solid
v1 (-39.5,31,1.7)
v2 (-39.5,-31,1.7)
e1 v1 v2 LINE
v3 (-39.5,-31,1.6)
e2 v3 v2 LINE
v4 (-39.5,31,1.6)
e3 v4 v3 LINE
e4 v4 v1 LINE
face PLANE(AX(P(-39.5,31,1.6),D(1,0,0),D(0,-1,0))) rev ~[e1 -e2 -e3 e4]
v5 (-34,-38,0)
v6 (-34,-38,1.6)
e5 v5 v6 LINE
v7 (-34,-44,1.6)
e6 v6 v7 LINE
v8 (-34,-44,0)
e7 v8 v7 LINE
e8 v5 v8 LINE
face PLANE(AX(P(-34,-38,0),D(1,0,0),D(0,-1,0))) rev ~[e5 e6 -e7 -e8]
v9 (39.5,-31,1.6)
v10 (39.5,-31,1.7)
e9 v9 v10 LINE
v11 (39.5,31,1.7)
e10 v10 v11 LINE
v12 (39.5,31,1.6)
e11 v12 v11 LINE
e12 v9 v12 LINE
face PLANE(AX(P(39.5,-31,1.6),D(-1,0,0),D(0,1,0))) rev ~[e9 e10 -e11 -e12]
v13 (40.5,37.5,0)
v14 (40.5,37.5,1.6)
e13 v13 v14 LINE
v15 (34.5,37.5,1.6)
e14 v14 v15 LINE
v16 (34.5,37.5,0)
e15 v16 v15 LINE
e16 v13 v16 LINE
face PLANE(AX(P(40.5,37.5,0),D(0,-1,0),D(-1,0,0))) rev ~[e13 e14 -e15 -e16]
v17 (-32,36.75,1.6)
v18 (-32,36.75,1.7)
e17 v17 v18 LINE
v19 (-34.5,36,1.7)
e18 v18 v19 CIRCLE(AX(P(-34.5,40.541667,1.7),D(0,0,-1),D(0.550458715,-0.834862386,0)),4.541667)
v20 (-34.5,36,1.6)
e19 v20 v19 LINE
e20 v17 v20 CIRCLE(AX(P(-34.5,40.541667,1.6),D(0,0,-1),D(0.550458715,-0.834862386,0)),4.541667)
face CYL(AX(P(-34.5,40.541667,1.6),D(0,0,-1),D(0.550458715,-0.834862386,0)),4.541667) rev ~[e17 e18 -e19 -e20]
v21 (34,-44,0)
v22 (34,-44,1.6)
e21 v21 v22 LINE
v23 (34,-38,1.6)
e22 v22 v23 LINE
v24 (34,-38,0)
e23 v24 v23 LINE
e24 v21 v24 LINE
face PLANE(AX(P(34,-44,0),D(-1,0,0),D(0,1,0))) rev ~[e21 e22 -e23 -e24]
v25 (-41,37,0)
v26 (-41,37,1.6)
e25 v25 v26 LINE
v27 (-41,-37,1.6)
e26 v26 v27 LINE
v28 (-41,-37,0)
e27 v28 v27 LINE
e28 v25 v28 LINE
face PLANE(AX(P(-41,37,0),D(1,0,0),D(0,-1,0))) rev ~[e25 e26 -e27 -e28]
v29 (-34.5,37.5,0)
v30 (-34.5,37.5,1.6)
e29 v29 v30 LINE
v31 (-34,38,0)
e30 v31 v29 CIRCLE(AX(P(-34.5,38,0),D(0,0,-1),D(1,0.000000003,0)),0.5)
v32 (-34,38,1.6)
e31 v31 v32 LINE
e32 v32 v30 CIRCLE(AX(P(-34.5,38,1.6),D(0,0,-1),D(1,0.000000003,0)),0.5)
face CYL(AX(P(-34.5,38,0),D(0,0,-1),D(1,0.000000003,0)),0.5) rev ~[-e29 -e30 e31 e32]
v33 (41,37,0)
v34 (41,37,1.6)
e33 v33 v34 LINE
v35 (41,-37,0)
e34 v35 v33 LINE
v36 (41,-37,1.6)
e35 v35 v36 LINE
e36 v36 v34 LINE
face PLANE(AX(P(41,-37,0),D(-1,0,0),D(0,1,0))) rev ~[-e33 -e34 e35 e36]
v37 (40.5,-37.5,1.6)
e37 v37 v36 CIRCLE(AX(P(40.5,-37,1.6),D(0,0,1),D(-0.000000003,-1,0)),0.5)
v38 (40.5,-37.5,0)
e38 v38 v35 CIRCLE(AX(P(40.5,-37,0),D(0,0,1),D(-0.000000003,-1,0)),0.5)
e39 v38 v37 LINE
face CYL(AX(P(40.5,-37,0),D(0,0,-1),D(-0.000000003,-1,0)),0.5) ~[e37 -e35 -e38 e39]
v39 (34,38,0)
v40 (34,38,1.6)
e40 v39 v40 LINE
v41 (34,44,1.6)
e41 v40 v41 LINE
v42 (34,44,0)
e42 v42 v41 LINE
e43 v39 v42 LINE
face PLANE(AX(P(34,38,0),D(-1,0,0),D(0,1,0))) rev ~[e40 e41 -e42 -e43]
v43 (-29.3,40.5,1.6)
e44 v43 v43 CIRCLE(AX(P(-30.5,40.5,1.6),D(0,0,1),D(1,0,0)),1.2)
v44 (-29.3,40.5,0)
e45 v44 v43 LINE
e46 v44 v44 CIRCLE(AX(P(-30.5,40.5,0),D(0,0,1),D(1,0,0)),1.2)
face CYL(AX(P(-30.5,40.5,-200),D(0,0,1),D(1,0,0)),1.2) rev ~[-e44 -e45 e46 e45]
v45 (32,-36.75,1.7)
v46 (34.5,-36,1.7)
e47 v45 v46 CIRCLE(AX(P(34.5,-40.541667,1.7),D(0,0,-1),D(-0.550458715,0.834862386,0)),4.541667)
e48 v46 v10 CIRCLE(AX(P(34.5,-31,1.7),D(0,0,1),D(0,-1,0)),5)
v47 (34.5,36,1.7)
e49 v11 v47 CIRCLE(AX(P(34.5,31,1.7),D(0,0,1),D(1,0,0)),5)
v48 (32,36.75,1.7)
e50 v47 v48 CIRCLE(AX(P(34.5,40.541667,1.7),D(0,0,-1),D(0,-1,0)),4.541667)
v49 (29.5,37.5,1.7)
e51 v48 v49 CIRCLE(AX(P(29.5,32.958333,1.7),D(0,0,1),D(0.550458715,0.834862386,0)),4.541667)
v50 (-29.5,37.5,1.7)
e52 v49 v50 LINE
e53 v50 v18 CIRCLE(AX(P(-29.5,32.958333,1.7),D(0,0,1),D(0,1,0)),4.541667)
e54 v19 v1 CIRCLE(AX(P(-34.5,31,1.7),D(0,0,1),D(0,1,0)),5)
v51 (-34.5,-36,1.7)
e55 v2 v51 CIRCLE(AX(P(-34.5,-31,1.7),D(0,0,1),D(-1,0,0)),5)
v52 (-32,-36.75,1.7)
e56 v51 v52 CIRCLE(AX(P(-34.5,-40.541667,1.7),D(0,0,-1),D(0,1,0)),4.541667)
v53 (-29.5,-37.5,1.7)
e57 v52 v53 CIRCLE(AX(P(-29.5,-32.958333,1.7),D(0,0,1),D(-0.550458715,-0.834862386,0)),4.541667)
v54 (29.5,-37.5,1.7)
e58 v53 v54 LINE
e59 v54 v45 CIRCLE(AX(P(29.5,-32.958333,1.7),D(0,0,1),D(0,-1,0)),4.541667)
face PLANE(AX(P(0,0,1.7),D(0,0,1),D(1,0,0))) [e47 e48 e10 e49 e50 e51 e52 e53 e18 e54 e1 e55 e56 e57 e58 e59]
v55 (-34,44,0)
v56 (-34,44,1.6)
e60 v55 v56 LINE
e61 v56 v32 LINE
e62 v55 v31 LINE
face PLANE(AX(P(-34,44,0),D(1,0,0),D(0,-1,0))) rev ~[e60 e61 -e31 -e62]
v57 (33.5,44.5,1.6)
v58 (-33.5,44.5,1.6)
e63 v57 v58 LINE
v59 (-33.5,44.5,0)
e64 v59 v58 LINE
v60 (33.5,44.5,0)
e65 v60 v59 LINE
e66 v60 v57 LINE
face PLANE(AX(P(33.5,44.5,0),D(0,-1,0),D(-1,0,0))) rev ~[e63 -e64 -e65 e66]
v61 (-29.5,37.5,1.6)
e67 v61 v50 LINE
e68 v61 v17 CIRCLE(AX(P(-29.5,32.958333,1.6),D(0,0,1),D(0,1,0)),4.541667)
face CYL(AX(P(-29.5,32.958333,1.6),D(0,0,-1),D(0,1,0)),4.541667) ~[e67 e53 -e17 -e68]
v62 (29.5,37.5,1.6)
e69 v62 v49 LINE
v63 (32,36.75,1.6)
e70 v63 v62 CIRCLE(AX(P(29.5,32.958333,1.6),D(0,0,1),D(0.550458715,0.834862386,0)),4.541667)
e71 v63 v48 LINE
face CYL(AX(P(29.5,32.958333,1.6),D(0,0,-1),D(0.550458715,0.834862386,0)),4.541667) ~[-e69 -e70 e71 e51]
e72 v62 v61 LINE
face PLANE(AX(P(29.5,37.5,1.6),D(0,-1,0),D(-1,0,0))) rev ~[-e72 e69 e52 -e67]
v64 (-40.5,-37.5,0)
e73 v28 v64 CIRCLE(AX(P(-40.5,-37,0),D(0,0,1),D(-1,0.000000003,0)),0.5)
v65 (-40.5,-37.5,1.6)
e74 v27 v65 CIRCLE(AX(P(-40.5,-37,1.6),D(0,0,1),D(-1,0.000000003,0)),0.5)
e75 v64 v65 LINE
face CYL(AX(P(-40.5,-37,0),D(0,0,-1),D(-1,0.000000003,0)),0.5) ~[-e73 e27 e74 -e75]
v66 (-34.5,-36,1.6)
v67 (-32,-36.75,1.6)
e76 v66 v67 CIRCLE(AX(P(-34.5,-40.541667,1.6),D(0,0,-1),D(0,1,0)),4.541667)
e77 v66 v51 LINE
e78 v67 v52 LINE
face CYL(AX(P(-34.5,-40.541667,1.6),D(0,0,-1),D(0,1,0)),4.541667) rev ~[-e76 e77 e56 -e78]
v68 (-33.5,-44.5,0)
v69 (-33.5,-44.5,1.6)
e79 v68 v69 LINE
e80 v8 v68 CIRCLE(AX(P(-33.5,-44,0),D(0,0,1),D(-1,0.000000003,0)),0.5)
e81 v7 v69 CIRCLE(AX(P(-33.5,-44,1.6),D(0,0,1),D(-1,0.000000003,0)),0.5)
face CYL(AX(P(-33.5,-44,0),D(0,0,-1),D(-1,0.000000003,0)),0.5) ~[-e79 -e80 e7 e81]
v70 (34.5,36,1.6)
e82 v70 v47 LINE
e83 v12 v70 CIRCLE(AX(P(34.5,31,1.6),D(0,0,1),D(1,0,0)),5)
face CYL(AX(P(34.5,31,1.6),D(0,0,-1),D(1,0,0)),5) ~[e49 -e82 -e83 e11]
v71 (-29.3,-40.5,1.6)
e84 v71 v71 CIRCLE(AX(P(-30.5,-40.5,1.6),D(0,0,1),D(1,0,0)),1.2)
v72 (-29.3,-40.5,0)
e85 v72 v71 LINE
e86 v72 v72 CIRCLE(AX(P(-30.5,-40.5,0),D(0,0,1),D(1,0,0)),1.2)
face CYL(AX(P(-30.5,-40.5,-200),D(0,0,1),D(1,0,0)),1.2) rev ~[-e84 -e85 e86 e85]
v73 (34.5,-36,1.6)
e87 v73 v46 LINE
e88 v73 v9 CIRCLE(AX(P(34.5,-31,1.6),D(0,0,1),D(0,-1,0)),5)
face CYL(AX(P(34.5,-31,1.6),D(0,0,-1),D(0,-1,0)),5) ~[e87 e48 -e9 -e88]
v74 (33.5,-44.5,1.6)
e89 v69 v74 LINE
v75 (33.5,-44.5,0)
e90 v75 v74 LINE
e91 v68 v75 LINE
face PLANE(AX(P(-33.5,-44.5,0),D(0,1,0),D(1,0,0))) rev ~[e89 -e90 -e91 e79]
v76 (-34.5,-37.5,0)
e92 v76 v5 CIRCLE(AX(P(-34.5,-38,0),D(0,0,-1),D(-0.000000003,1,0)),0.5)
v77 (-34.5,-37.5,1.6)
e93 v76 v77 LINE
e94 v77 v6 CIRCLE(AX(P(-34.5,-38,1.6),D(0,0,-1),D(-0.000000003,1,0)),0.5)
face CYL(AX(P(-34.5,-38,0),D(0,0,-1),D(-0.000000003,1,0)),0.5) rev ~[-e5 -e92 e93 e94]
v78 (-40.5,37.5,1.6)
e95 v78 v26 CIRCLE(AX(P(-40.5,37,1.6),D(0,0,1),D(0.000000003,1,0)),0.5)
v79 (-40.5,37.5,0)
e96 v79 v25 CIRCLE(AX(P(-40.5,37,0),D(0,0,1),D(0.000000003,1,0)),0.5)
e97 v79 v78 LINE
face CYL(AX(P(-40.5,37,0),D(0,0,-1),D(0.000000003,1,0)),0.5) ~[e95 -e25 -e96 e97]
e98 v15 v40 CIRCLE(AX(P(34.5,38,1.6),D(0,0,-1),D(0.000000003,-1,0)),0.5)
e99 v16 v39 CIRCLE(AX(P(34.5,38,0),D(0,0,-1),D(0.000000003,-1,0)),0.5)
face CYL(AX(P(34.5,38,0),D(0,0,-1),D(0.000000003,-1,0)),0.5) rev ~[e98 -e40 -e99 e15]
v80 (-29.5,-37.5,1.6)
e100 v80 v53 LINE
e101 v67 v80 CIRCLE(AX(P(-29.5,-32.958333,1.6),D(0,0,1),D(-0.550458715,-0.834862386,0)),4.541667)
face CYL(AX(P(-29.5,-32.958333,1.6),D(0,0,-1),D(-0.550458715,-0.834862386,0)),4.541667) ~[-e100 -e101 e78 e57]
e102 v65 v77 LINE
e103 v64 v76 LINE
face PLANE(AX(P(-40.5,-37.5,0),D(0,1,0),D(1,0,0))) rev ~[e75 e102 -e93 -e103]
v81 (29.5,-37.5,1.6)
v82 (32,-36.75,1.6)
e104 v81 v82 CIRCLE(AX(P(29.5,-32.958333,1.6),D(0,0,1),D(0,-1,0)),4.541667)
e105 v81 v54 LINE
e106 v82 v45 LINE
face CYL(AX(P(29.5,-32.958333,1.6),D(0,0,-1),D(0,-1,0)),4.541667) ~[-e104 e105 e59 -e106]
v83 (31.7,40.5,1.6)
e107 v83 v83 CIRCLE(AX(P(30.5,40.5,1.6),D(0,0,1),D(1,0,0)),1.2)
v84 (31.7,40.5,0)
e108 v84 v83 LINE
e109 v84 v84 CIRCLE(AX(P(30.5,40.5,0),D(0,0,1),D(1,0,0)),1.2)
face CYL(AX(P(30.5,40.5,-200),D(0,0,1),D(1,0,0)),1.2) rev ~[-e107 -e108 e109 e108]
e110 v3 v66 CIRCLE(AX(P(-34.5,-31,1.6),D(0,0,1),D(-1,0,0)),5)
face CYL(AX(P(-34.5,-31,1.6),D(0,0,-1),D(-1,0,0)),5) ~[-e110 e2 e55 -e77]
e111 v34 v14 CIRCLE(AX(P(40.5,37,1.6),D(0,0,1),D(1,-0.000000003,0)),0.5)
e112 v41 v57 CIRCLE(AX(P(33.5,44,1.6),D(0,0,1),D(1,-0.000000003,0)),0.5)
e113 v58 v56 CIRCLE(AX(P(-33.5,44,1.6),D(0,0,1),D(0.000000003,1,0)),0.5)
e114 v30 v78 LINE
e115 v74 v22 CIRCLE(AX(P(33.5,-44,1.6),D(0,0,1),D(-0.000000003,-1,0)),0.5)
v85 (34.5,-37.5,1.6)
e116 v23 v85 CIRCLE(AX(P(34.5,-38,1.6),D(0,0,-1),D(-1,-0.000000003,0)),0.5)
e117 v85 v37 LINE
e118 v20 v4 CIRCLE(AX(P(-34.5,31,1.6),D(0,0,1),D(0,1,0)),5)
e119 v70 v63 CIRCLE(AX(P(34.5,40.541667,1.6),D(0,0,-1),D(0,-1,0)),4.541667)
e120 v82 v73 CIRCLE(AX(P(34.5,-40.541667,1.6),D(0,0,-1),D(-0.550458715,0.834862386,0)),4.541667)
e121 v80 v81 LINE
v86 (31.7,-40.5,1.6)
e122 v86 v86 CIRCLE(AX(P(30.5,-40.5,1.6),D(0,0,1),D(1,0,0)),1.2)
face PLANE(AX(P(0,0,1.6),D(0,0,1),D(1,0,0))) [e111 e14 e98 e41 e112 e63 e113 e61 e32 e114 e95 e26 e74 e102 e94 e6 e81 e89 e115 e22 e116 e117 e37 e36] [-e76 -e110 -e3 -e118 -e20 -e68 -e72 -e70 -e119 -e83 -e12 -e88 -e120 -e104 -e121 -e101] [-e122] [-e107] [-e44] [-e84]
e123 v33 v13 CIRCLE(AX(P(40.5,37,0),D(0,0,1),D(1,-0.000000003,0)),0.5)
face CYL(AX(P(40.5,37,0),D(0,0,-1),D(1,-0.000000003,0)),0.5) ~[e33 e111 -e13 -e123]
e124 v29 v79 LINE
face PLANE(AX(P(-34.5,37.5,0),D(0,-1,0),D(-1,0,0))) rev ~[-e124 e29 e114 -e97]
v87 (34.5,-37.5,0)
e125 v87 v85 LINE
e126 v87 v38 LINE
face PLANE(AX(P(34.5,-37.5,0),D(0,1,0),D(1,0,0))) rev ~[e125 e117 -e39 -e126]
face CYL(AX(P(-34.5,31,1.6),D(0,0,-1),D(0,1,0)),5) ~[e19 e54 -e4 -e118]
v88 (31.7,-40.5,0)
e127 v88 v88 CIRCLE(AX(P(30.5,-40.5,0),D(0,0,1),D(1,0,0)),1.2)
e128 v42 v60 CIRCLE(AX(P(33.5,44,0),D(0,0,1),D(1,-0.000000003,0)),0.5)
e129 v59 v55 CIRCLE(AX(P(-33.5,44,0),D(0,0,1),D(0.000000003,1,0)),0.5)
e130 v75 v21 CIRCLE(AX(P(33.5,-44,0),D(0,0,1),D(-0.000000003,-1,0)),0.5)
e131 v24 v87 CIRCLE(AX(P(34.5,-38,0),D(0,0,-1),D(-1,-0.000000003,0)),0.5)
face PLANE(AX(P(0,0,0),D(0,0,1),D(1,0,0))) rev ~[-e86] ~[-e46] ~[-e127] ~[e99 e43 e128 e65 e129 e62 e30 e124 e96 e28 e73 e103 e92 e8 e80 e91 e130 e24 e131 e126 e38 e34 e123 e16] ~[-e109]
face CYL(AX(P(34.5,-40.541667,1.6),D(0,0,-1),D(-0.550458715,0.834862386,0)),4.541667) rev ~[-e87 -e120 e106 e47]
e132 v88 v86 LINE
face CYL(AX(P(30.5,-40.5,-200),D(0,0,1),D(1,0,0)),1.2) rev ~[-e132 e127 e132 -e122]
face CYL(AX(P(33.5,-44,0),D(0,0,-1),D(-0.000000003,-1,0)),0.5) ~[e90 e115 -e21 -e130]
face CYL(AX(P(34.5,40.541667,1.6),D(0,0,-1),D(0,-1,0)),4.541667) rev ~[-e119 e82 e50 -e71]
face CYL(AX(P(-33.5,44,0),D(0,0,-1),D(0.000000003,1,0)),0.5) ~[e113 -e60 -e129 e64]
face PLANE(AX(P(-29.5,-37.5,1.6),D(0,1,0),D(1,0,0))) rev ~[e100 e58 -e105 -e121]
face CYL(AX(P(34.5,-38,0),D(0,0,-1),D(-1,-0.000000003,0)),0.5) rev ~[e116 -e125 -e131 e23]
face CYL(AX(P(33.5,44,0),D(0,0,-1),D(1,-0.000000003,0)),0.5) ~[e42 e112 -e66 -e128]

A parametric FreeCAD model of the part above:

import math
import FreeCAD as App
import Part
import Sketcher

V = App.Vector
Q = App.Units.Quantity

doc = App.newDocument("Part")
body = doc.addObject("PartDesign::Body", "Body")

# Sketch on XY plane
sketch1 = body.newObject("Sketcher::SketchObject", "Sketch")
sketch1.AttachmentSupport = (doc.getObject("XY_Plane"), [""])
sketch1.MapMode = "FlatFace"
sketch1.addGeometry([
    Part.LineSegment(V(-34, 44, 0), V(-34, 38, 0)),  # 0
    Part.ArcOfCircle(Part.Circle(V(-34.5, 38, 0), V(0, 0, 1), 0.5), math.radians(-90), math.radians(0)),  # 1
    Part.LineSegment(V(-34.5, 37.5, 0), V(-40.5, 37.5, 0)),  # 2
    Part.ArcOfCircle(Part.Circle(V(-40.5, 37, 0), V(0, 0, 1), 0.5), math.radians(90), math.radians(180)),  # 3
    Part.LineSegment(V(-41, 37, 0), V(-41, -37, 0)),  # 4
    Part.ArcOfCircle(Part.Circle(V(-40.5, -37, 0), V(0, 0, 1), 0.5), math.radians(180), math.radians(270)),  # 5
    Part.LineSegment(V(-40.5, -37.5, 0), V(-34.5, -37.5, 0)),  # 6
    Part.ArcOfCircle(Part.Circle(V(-34.5, -38, 0), V(0, 0, 1), 0.5), math.radians(0), math.radians(90)),  # 7
    Part.LineSegment(V(-34, -38, 0), V(-34, -44, 0)),  # 8
    Part.ArcOfCircle(Part.Circle(V(-33.5, -44, 0), V(0, 0, 1), 0.5), math.radians(180), math.radians(270)),  # 9
    Part.LineSegment(V(-33.5, -44.5, 0), V(33.5, -44.5, 0)),  # 10
    Part.ArcOfCircle(Part.Circle(V(33.5, -44, 0), V(0, 0, 1), 0.5), math.radians(-90), math.radians(0)),  # 11
    Part.LineSegment(V(34, -44, 0), V(34, -38, 0)),  # 12
    Part.ArcOfCircle(Part.Circle(V(34.5, -38, 0), V(0, 0, 1), 0.5), math.radians(90), math.radians(180)),  # 13
    Part.LineSegment(V(34.5, -37.5, 0), V(40.5, -37.5, 0)),  # 14
    Part.ArcOfCircle(Part.Circle(V(40.5, -37, 0), V(0, 0, 1), 0.5), math.radians(-90), math.radians(0)),  # 15
    Part.LineSegment(V(41, -37, 0), V(41, 37, 0)),  # 16
    Part.ArcOfCircle(Part.Circle(V(40.5, 37, 0), V(0, 0, 1), 0.5), math.radians(0), math.radians(90)),  # 17
    Part.LineSegment(V(40.5, 37.5, 0), V(34.5, 37.5, 0)),  # 18
    Part.ArcOfCircle(Part.Circle(V(34.5, 38, 0), V(0, 0, 1), 0.5), math.radians(180), math.radians(270)),  # 19
    Part.LineSegment(V(34, 38, 0), V(34, 44, 0)),  # 20
    Part.ArcOfCircle(Part.Circle(V(33.5, 44, 0), V(0, 0, 1), 0.5), math.radians(0), math.radians(90)),  # 21
    Part.LineSegment(V(33.5, 44.5, 0), V(-33.5, 44.5, 0)),  # 22
    Part.ArcOfCircle(Part.Circle(V(-33.5, 44, 0), V(0, 0, 1), 0.5), math.radians(90), math.radians(180)),  # 23
], False)
sketch1.addConstraint([
    Sketcher.Constraint("Tangent", 0, 2, 1, 2),
    Sketcher.Constraint("Tangent", 1, 1, 2, 1),
    Sketcher.Constraint("Tangent", 2, 2, 3, 1),
    Sketcher.Constraint("Tangent", 3, 2, 4, 1),
    Sketcher.Constraint("Tangent", 4, 2, 5, 1),
    Sketcher.Constraint("Tangent", 5, 2, 6, 1),
    Sketcher.Constraint("Tangent", 6, 2, 7, 2),
    Sketcher.Constraint("Tangent", 7, 1, 8, 1),
    Sketcher.Constraint("Tangent", 8, 2, 9, 1),
    Sketcher.Constraint("Tangent", 9, 2, 10, 1),
    Sketcher.Constraint("Tangent", 10, 2, 11, 1),
    Sketcher.Constraint("Tangent", 11, 2, 12, 1),
    Sketcher.Constraint("Tangent", 12, 2, 13, 2),
    Sketcher.Constraint("Tangent", 13, 1, 14, 1),
    Sketcher.Constraint("Tangent", 14, 2, 15, 1),
    Sketcher.Constraint("Tangent", 15, 2, 16, 1),
    Sketcher.Constraint("Tangent", 16, 2, 17, 1),
    Sketcher.Constraint("Tangent", 17, 2, 18, 1),
    Sketcher.Constraint("Tangent", 18, 2, 19, 2),
    Sketcher.Constraint("Tangent", 19, 1, 20, 1),
    Sketcher.Constraint("Tangent", 20, 2, 21, 1),
    Sketcher.Constraint("Tangent", 21, 2, 22, 1),
    Sketcher.Constraint("Tangent", 22, 2, 23, 1),
    Sketcher.Constraint("Tangent", 23, 2, 0, 1),
    Sketcher.Constraint("Vertical", 0),
    Sketcher.Constraint("Horizontal", 2),
    Sketcher.Constraint("Vertical", 4),
    Sketcher.Constraint("Horizontal", 6),
    Sketcher.Constraint("Vertical", 8),
    Sketcher.Constraint("Horizontal", 10),
    Sketcher.Constraint("Vertical", 12),
    Sketcher.Constraint("Horizontal", 14),
    Sketcher.Constraint("Vertical", 16),
    Sketcher.Constraint("Horizontal", 18),
    Sketcher.Constraint("Vertical", 20),
    Sketcher.Constraint("Horizontal", 22),
    Sketcher.Constraint("Equal", 1, 3),
    Sketcher.Constraint("Equal", 3, 5),
    Sketcher.Constraint("Equal", 5, 7),
    Sketcher.Constraint("Equal", 7, 9),
    Sketcher.Constraint("Equal", 9, 11),
    Sketcher.Constraint("Equal", 11, 13),
    Sketcher.Constraint("Equal", 13, 15),
    Sketcher.Constraint("Equal", 15, 17),
    Sketcher.Constraint("Equal", 17, 19),
    Sketcher.Constraint("Equal", 19, 21),
    Sketcher.Constraint("Equal", 21, 23),
    Sketcher.Constraint("Symmetric", 1, 3, 13, 3, -1, 1),
    Sketcher.Constraint("Symmetric", 5, 3, 17, 3, -1, 1),
    Sketcher.Constraint("Symmetric", 9, 3, 21, 3, -1, 1),
    Sketcher.Constraint("Symmetric", 7, 3, 13, 3, -2),
    Sketcher.Constraint("Equal", 18, 0),
    Sketcher.Constraint("Radius", 1, Q("0.5 mm")),
    Sketcher.Constraint("DistanceX", 2, 2, 2, 1, Q("6 mm")),
    Sketcher.Constraint("DistanceX", 10, 1, 10, 2, Q("67 mm")),
    Sketcher.Constraint("DistanceY", 4, 2, 4, 1, Q("74 mm")),
])
pad1 = body.newObject("PartDesign::Pad", "Pad")
pad1.Profile = sketch1
pad1.Length = 1.6

# Sketch on XY plane
sketch2 = body.newObject("Sketcher::SketchObject", "Sketch001")
sketch2.AttachmentSupport = (doc.getObject("XY_Plane"), [""])
sketch2.MapMode = "FlatFace"
sketch2.AttachmentOffset = App.Placement(V(0, 0, 1.6), App.Rotation())
sketch2.addGeometry([
    Part.LineSegment(V(-29.5, -37.5, 0), V(29.5, -37.5, 0)),  # 0
    Part.ArcOfCircle(Part.Circle(V(29.5, -32.958333, 0), V(0, 0, 1), 4.541667), math.radians(-90), math.radians(-56.601512)),  # 1
    Part.ArcOfCircle(Part.Circle(V(34.5, -40.541667, 0), V(0, 0, 1), 4.541667), math.radians(90), math.radians(123.398488)),  # 2
    Part.ArcOfCircle(Part.Circle(V(34.5, -31, 0), V(0, 0, 1), 5), math.radians(-90), math.radians(0)),  # 3
    Part.LineSegment(V(39.5, -31, 0), V(39.5, 31, 0)),  # 4
    Part.ArcOfCircle(Part.Circle(V(34.5, 31, 0), V(0, 0, 1), 5), math.radians(0), math.radians(90)),  # 5
    Part.ArcOfCircle(Part.Circle(V(34.5, 40.541667, 0), V(0, 0, 1), 4.541667), math.radians(-123.398488), math.radians(-90)),  # 6
    Part.ArcOfCircle(Part.Circle(V(29.5, 32.958333, 0), V(0, 0, 1), 4.541667), math.radians(56.601512), math.radians(90)),  # 7
    Part.LineSegment(V(29.5, 37.5, 0), V(-29.5, 37.5, 0)),  # 8
    Part.ArcOfCircle(Part.Circle(V(-29.5, 32.958333, 0), V(0, 0, 1), 4.541667), math.radians(90), math.radians(123.398488)),  # 9
    Part.ArcOfCircle(Part.Circle(V(-34.5, 40.541667, 0), V(0, 0, 1), 4.541667), math.radians(-90), math.radians(-56.601512)),  # 10
    Part.ArcOfCircle(Part.Circle(V(-34.5, 31, 0), V(0, 0, 1), 5), math.radians(90), math.radians(180)),  # 11
    Part.LineSegment(V(-39.5, 31, 0), V(-39.5, -31, 0)),  # 12
    Part.ArcOfCircle(Part.Circle(V(-34.5, -31, 0), V(0, 0, 1), 5), math.radians(180), math.radians(270)),  # 13
    Part.ArcOfCircle(Part.Circle(V(-34.5, -40.541667, 0), V(0, 0, 1), 4.541667), math.radians(56.601512), math.radians(90)),  # 14
    Part.ArcOfCircle(Part.Circle(V(-29.5, -32.958333, 0), V(0, 0, 1), 4.541667), math.radians(-123.398488), math.radians(-90)),  # 15
], False)
sketch2.addConstraint([
    Sketcher.Constraint("Tangent", 0, 2, 1, 1),
    Sketcher.Constraint("Tangent", 1, 2, 2, 2),
    Sketcher.Constraint("Tangent", 2, 1, 3, 1),
    Sketcher.Constraint("Tangent", 3, 2, 4, 1),
    Sketcher.Constraint("Tangent", 4, 2, 5, 1),
    Sketcher.Constraint("Tangent", 5, 2, 6, 2),
    Sketcher.Constraint("Tangent", 6, 1, 7, 1),
    Sketcher.Constraint("Tangent", 7, 2, 8, 1),
    Sketcher.Constraint("Tangent", 8, 2, 9, 1),
    Sketcher.Constraint("Tangent", 9, 2, 10, 2),
    Sketcher.Constraint("Tangent", 10, 1, 11, 1),
    Sketcher.Constraint("Tangent", 11, 2, 12, 1),
    Sketcher.Constraint("Tangent", 12, 2, 13, 1),
    Sketcher.Constraint("Tangent", 13, 2, 14, 2),
    Sketcher.Constraint("Tangent", 14, 1, 15, 1),
    Sketcher.Constraint("Tangent", 15, 2, 0, 1),
    Sketcher.Constraint("Horizontal", 0),
    Sketcher.Constraint("Vertical", 4),
    Sketcher.Constraint("Horizontal", 8),
    Sketcher.Constraint("Vertical", 12),
    Sketcher.Constraint("Equal", 1, 2),
    Sketcher.Constraint("Equal", 3, 5),
    Sketcher.Constraint("Equal", 2, 6),
    Sketcher.Constraint("Equal", 6, 7),
    Sketcher.Constraint("Equal", 7, 9),
    Sketcher.Constraint("Equal", 9, 10),
    Sketcher.Constraint("Equal", 5, 11),
    Sketcher.Constraint("Equal", 11, 13),
    Sketcher.Constraint("Equal", 10, 14),
    Sketcher.Constraint("Equal", 14, 15),
    Sketcher.Constraint("Symmetric", 1, 3, 9, 3, -1, 1),
    Sketcher.Constraint("Symmetric", 3, 3, 11, 3, -1, 1),
    Sketcher.Constraint("Symmetric", 6, 3, 14, 3, -1, 1),
    Sketcher.Constraint("Symmetric", 6, 3, 10, 3, -2),
    Sketcher.Constraint("Vertical", 2, 3, 3, 3),
    Sketcher.Constraint("Radius", 3, Q("5 mm")),
    Sketcher.Constraint("DistanceX", 0, 1, 0, 2, Q("59 mm")),
    Sketcher.Constraint("DistanceY", 4, 1, 4, 2, Q("62 mm")),
    Sketcher.Constraint("DistanceX", -1, 1, 1, 2, Q("32 mm")),
    Sketcher.Constraint("DistanceY", 0, 2, -1, 1, Q("37.5 mm")),
])
pad2 = body.newObject("PartDesign::Pad", "Pad001")
pad2.Profile = sketch2
pad2.Length = 0.1

# Sketch on XY plane
sketch3 = body.newObject("Sketcher::SketchObject", "Sketch002")
sketch3.AttachmentSupport = (doc.getObject("XY_Plane"), [""])
sketch3.MapMode = "FlatFace"
sketch3.addGeometry([
    Part.Circle(V(30.5, 40.5, 0), V(0, 0, 1), 1.2),
    Part.Circle(V(-30.5, 40.5, 0), V(0, 0, 1), 1.2),
    Part.Circle(V(30.5, -40.5, 0), V(0, 0, 1), 1.2),
    Part.Circle(V(-30.5, -40.5, 0), V(0, 0, 1), 1.2),
], False)
sketch3.addConstraint([
    Sketcher.Constraint("Equal", 0, 1),
    Sketcher.Constraint("Equal", 1, 2),
    Sketcher.Constraint("Equal", 2, 3),
    Sketcher.Constraint("Symmetric", 1, 3, 2, 3, -1, 1),
    Sketcher.Constraint("Symmetric", 0, 3, 3, 3, -1, 1),
    Sketcher.Constraint("Symmetric", 0, 3, 1, 3, -2),
    Sketcher.Constraint("Diameter", 0, Q("2.4 mm")),
    Sketcher.Constraint("DistanceX", 1, 3, 0, 3, Q("61 mm")),
    Sketcher.Constraint("DistanceY", 2, 3, 0, 3, Q("81 mm")),
])
doc.recompute()
hole = body.newObject("PartDesign::Hole", "Hole")
hole.Profile = sketch3
hole.ThreadType = "None"
hole.Diameter = 2.4
hole.DepthType = "Dimension"
hole.Depth = 200
hole.DrillPoint = "Angled"
hole.DrillPointAngle = 118
hole.Reversed = True

doc.recompute()
